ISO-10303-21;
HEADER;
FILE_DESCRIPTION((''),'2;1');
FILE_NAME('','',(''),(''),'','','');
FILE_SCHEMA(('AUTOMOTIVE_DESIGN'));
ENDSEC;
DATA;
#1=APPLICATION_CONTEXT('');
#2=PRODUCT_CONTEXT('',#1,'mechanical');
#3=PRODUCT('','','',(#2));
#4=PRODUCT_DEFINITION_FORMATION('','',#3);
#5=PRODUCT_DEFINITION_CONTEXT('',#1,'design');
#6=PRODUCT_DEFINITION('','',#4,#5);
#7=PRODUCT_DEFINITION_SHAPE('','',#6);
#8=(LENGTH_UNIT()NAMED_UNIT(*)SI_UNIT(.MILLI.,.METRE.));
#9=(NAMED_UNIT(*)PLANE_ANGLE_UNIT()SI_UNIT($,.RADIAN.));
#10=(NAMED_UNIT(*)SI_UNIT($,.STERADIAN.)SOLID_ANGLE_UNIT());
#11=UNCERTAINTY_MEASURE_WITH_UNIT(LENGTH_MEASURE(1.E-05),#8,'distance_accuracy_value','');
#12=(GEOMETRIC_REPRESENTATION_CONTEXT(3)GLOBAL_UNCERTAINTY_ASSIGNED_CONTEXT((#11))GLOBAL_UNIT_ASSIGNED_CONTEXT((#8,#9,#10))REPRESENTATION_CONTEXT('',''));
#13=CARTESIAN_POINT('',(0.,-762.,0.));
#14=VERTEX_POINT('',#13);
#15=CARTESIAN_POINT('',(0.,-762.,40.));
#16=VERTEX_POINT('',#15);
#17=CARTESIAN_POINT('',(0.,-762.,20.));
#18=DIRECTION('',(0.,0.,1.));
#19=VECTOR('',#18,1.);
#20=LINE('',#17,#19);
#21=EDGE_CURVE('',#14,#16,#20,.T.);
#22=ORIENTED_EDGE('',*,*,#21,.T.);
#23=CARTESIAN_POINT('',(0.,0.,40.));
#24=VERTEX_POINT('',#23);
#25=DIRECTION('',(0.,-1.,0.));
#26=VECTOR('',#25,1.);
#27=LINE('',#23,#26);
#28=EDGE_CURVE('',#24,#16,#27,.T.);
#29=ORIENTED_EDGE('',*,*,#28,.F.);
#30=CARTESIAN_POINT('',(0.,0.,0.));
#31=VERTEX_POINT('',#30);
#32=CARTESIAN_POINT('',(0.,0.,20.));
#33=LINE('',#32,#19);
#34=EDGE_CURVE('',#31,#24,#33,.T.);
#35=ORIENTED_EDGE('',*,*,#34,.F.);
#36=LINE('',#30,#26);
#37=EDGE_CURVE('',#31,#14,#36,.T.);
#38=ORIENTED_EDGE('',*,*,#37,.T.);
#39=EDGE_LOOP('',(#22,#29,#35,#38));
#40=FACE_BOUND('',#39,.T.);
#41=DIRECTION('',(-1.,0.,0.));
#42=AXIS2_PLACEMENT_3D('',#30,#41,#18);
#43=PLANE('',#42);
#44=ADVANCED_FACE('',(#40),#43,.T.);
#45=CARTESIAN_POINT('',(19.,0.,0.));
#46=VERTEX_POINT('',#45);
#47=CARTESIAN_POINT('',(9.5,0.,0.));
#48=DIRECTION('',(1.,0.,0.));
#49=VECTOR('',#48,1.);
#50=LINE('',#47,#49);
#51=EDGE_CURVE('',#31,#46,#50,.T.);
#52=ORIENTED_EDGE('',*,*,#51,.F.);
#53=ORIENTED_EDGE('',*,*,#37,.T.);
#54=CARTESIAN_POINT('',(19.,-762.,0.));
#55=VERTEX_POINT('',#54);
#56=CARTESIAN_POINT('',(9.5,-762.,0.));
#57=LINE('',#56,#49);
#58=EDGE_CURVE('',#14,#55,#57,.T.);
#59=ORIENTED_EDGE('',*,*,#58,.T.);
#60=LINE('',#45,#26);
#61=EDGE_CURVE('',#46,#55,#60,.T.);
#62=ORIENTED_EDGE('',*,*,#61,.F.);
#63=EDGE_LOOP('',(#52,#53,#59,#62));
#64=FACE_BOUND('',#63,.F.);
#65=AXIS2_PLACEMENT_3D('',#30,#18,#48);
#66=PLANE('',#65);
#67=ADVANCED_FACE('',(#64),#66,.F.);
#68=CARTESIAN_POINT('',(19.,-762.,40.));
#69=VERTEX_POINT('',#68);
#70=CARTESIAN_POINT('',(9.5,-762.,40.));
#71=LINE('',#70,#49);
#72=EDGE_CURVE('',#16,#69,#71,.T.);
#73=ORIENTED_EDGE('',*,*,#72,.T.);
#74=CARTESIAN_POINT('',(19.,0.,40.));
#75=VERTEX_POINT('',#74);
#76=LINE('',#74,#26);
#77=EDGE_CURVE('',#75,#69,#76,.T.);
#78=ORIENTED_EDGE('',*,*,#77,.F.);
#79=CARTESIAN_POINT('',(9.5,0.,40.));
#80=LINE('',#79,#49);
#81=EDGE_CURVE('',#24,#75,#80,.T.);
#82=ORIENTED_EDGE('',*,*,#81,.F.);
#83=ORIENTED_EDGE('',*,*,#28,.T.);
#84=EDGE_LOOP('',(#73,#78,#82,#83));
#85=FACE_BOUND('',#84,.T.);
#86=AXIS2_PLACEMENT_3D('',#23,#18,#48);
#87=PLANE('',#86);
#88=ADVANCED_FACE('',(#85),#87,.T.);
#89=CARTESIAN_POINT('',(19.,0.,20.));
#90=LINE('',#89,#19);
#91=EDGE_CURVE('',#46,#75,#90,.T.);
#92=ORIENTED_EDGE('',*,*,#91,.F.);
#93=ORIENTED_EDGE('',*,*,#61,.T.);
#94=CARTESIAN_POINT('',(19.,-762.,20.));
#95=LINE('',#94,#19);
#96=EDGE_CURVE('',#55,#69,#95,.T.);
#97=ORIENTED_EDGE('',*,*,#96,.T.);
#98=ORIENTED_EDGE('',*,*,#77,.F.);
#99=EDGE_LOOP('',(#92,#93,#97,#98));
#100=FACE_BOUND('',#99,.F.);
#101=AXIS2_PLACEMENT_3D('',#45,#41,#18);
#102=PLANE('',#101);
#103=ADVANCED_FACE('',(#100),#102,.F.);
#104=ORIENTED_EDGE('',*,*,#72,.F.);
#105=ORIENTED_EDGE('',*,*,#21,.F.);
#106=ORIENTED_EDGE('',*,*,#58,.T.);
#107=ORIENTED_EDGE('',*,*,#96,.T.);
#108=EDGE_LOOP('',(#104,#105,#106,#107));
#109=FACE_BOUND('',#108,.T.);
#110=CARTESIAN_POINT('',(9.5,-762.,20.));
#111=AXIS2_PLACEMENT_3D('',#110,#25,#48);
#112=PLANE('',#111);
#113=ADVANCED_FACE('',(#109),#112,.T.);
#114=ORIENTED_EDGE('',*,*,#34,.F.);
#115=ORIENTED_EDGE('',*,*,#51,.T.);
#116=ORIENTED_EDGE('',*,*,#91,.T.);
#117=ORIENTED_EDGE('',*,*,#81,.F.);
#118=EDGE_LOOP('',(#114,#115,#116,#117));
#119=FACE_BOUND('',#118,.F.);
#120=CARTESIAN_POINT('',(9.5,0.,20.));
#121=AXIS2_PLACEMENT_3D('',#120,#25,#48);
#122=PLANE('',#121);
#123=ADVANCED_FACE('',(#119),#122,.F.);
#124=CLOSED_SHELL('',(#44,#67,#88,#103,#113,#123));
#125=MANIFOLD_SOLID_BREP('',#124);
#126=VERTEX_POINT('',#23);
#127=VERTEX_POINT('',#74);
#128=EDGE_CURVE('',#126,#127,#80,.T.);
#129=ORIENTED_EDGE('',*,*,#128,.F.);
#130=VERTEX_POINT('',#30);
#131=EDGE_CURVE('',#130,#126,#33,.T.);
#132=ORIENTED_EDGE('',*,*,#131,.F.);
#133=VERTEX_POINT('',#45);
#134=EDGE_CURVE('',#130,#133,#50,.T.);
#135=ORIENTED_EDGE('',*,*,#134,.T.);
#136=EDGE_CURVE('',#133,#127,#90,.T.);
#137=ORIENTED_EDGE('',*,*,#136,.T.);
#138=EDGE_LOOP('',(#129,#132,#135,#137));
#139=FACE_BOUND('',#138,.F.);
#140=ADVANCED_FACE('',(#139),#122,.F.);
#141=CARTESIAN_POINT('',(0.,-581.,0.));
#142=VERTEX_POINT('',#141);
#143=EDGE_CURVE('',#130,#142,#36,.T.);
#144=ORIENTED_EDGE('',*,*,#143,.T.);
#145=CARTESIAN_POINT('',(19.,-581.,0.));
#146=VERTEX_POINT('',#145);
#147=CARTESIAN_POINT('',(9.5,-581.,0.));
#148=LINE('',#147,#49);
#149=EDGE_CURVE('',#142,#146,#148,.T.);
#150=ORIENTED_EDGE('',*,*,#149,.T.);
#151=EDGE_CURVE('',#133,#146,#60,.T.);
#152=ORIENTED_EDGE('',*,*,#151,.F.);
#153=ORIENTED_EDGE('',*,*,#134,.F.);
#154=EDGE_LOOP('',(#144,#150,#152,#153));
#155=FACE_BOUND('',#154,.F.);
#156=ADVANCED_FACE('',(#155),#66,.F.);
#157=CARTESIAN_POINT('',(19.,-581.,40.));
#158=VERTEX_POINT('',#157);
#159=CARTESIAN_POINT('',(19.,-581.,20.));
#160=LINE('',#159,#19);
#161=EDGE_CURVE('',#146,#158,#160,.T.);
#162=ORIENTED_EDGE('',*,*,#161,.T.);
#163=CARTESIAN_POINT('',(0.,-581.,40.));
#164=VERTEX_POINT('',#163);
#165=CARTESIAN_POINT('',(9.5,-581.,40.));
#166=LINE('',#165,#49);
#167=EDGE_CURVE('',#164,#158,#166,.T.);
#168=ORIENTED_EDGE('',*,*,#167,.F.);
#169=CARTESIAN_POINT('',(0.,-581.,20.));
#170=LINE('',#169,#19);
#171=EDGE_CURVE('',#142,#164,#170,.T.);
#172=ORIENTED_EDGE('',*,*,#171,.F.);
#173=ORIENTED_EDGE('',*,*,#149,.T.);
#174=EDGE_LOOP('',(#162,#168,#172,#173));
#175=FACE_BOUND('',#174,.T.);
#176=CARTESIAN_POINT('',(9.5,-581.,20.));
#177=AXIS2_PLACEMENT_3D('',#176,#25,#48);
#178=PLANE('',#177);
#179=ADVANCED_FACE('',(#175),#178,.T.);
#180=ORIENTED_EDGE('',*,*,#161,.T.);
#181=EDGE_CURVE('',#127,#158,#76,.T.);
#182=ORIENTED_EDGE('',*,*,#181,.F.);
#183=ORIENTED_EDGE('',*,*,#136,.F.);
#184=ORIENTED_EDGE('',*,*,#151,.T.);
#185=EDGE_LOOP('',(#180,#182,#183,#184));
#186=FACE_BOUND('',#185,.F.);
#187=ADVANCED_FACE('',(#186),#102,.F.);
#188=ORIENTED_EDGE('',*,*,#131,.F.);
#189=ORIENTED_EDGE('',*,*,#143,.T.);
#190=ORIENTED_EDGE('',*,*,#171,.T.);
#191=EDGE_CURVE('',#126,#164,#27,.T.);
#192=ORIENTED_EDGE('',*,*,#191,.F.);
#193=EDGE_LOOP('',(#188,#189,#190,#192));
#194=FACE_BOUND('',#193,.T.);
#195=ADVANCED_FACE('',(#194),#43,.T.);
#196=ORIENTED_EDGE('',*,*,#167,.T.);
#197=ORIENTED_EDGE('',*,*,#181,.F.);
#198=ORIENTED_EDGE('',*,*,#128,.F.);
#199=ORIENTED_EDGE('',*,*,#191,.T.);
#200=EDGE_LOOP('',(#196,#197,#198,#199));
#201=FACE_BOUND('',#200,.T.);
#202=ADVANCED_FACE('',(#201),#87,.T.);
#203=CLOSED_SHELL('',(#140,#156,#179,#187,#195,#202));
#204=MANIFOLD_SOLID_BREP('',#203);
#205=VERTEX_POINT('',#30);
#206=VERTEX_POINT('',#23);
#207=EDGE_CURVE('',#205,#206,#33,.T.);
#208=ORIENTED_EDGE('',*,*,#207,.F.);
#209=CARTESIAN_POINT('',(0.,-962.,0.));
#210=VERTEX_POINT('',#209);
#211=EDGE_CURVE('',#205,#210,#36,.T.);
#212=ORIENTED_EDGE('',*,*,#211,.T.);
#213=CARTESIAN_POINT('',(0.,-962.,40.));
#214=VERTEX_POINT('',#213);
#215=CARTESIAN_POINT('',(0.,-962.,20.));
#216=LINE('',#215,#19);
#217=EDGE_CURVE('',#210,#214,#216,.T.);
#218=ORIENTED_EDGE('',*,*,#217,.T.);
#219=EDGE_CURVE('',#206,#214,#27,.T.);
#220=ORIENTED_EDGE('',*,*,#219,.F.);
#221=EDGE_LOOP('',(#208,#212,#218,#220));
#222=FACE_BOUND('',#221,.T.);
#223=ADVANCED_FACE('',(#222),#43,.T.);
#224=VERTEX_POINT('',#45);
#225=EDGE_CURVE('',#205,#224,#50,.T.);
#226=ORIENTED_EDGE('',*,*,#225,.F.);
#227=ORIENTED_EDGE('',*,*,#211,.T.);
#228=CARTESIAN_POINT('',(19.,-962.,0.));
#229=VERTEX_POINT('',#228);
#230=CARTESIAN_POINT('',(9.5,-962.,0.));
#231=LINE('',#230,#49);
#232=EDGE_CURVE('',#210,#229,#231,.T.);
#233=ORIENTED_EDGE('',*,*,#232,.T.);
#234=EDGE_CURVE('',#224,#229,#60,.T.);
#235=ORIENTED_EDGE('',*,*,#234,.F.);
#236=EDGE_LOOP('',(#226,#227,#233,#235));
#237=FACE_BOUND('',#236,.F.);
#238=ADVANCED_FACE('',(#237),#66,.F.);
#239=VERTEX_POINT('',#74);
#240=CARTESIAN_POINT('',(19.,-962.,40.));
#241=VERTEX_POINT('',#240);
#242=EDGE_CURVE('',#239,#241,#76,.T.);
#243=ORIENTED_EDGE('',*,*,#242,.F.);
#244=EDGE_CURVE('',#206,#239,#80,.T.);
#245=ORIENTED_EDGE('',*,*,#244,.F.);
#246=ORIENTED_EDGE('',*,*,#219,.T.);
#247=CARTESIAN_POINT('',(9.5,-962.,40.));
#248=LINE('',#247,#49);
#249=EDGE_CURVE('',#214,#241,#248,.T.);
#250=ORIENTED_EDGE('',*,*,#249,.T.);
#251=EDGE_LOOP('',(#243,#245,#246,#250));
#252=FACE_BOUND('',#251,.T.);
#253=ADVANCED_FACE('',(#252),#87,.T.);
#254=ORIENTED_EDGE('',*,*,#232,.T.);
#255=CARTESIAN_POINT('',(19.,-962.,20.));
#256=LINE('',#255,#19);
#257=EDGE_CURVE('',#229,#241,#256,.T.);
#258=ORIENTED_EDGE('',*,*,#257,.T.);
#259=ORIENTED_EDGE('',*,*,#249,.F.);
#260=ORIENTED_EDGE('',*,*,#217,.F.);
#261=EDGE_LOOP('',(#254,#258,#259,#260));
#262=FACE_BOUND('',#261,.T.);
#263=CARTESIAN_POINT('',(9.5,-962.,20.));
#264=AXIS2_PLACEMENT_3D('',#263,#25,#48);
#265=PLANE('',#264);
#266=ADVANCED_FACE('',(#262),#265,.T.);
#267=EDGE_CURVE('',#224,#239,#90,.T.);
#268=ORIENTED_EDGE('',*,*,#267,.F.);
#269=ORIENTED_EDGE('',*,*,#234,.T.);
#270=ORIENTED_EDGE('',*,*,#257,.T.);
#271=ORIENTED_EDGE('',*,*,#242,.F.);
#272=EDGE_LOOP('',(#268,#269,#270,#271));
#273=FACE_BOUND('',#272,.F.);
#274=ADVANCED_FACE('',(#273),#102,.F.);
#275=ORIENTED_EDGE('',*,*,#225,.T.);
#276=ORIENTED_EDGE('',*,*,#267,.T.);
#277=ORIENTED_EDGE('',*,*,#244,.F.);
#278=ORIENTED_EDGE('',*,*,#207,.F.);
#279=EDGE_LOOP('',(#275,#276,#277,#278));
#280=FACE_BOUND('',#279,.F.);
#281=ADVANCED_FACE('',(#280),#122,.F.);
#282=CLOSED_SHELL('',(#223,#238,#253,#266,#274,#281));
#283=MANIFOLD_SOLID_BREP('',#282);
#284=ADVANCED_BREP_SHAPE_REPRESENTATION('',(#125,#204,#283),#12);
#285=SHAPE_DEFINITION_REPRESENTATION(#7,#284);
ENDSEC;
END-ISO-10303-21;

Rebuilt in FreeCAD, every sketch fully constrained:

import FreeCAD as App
import Part
import Sketcher

V = App.Vector
Q = App.Units.Quantity


def add_polygon(sketch, points):
    """Adds a closed chain of lines whose ends are joined by coincident constraints."""
    first, n = sketch.GeometryCount, len(points)
    for a, b in zip(points, points[1:] + points[:1]):
        sketch.addGeometry(Part.LineSegment(App.Vector(*a, 0), App.Vector(*b, 0)), False)
    for i in range(n):
        sketch.addConstraint(Sketcher.Constraint("Coincident", first + i, 2, first + (i + 1) % n, 1))

doc = App.newDocument("Part")
body = doc.addObject("PartDesign::Body", "Body")

# Sketch on XZ plane
sketch1 = body.newObject("Sketcher::SketchObject", "Sketch")
sketch1.AttachmentSupport = (doc.getObject("XZ_Plane"), [""])
sketch1.MapMode = "FlatFace"
add_polygon(sketch1, [(0, 40), (0, 0), (19, 0), (19, 40)])  # lines 0-3
sketch1.addConstraint([
    Sketcher.Constraint("Vertical", 0),
    Sketcher.Constraint("Horizontal", 1),
    Sketcher.Constraint("Vertical", 2),
    Sketcher.Constraint("Horizontal", 3),
    Sketcher.Constraint("Coincident", 0, 2, -1, 1),
    Sketcher.Constraint("DistanceX", 1, 1, 1, 2, Q("19 mm")),
    Sketcher.Constraint("DistanceY", 0, 2, 0, 1, Q("40 mm")),
])
pad1 = body.newObject("PartDesign::Pad", "Pad")
pad1.Profile = sketch1
pad1.Length = 762
body2 = doc.addObject("PartDesign::Body", "Body001")

# Sketch on XZ plane
sketch2 = body2.newObject("Sketcher::SketchObject", "Sketch001")
sketch2.AttachmentSupport = (doc.getObject("XZ_Plane001"), [""])
sketch2.MapMode = "FlatFace"
add_polygon(sketch2, [(0, 40), (0, 0), (19, 0), (19, 40)])  # lines 0-3
sketch2.addConstraint([
    Sketcher.Constraint("Vertical", 0),
    Sketcher.Constraint("Horizontal", 1),
    Sketcher.Constraint("Vertical", 2),
    Sketcher.Constraint("Horizontal", 3),
    Sketcher.Constraint("Coincident", 0, 2, -1, 1),
    Sketcher.Constraint("DistanceX", 1, 1, 1, 2, Q("19 mm")),
    Sketcher.Constraint("DistanceY", 0, 2, 0, 1, Q("40 mm")),
])
pad2 = body2.newObject("PartDesign::Pad", "Pad001")
pad2.Profile = sketch2
pad2.Length = 581
body3 = doc.addObject("PartDesign::Body", "Body002")

# Sketch on XZ plane
sketch3 = body3.newObject("Sketcher::SketchObject", "Sketch002")
sketch3.AttachmentSupport = (doc.getObject("XZ_Plane002"), [""])
sketch3.MapMode = "FlatFace"
add_polygon(sketch3, [(0, 40), (0, 0), (19, 0), (19, 40)])  # lines 0-3
sketch3.addConstraint([
    Sketcher.Constraint("Vertical", 0),
    Sketcher.Constraint("Horizontal", 1),
    Sketcher.Constraint("Vertical", 2),
    Sketcher.Constraint("Horizontal", 3),
    Sketcher.Constraint("Coincident", 0, 2, -1, 1),
    Sketcher.Constraint("DistanceX", 1, 1, 1, 2, Q("19 mm")),
    Sketcher.Constraint("DistanceY", 0, 2, 0, 1, Q("40 mm")),
])
pad3 = body3.newObject("PartDesign::Pad", "Pad002")
pad3.Profile = sketch3
pad3.Length = 962

doc.recompute()
